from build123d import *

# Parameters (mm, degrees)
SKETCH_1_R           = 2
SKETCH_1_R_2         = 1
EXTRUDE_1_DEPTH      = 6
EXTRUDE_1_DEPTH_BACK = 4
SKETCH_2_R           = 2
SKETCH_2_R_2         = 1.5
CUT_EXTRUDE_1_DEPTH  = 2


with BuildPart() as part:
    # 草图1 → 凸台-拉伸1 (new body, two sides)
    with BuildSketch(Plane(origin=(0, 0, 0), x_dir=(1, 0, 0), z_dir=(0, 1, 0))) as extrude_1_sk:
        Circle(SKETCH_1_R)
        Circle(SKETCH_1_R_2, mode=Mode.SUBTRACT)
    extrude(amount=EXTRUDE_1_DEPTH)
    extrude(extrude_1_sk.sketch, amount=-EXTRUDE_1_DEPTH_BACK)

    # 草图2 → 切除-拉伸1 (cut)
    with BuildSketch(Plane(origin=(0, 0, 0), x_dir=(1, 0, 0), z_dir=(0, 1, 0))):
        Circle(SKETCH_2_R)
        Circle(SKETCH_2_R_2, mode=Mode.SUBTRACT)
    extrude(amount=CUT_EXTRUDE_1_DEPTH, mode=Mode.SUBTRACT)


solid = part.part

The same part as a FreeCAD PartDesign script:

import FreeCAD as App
import Part
import Sketcher

V = App.Vector
Q = App.Units.Quantity

doc = App.newDocument("Part")
body = doc.addObject("PartDesign::Body", "Body")

# Sketch on XZ plane
sketch1 = body.newObject("Sketcher::SketchObject", "Sketch")
sketch1.AttachmentSupport = (doc.getObject("XZ_Plane"), [""])
sketch1.MapMode = "FlatFace"
sketch1.addGeometry([
    Part.Circle(V(0, 0, 0), V(0, 0, 1), 2),
    Part.Circle(V(0, 0, 0), V(0, 0, 1), 1),
], False)
sketch1.addConstraint([
    Sketcher.Constraint("Coincident", 0, 3, -1, 1),
    Sketcher.Constraint("Coincident", 1, 3, -1, 1),
    Sketcher.Constraint("Diameter", 0, Q("4 mm")),
    Sketcher.Constraint("Diameter", 1, Q("2 mm")),
])
pad1 = body.newObject("PartDesign::Pad", "Pad")
pad1.Profile = sketch1
pad1.Type = "TwoLengths"
pad1.Length = 6
pad1.Length2 = 4
pad1.Reversed = True

# Sketch on XZ plane
sketch2 = body.newObject("Sketcher::SketchObject", "Sketch001")
sketch2.AttachmentSupport = (doc.getObject("XZ_Plane"), [""])
sketch2.MapMode = "FlatFace"
sketch2.addGeometry([
    Part.Circle(V(0, 0, 0), V(0, 0, 1), 2),
    Part.Circle(V(0, 0, 0), V(0, 0, 1), 1.5),
], False)
sketch2.addConstraint([
    Sketcher.Constraint("Coincident", 0, 3, -1, 1),
    Sketcher.Constraint("Coincident", 1, 3, -1, 1),
    Sketcher.Constraint("Diameter", 0, Q("4 mm")),
    Sketcher.Constraint("Diameter", 1, Q("3 mm")),
])
pocket1 = body.newObject("PartDesign::Pocket", "Pocket")
pocket1.Profile = sketch2
pocket1.Length = 2

doc.recompute()
